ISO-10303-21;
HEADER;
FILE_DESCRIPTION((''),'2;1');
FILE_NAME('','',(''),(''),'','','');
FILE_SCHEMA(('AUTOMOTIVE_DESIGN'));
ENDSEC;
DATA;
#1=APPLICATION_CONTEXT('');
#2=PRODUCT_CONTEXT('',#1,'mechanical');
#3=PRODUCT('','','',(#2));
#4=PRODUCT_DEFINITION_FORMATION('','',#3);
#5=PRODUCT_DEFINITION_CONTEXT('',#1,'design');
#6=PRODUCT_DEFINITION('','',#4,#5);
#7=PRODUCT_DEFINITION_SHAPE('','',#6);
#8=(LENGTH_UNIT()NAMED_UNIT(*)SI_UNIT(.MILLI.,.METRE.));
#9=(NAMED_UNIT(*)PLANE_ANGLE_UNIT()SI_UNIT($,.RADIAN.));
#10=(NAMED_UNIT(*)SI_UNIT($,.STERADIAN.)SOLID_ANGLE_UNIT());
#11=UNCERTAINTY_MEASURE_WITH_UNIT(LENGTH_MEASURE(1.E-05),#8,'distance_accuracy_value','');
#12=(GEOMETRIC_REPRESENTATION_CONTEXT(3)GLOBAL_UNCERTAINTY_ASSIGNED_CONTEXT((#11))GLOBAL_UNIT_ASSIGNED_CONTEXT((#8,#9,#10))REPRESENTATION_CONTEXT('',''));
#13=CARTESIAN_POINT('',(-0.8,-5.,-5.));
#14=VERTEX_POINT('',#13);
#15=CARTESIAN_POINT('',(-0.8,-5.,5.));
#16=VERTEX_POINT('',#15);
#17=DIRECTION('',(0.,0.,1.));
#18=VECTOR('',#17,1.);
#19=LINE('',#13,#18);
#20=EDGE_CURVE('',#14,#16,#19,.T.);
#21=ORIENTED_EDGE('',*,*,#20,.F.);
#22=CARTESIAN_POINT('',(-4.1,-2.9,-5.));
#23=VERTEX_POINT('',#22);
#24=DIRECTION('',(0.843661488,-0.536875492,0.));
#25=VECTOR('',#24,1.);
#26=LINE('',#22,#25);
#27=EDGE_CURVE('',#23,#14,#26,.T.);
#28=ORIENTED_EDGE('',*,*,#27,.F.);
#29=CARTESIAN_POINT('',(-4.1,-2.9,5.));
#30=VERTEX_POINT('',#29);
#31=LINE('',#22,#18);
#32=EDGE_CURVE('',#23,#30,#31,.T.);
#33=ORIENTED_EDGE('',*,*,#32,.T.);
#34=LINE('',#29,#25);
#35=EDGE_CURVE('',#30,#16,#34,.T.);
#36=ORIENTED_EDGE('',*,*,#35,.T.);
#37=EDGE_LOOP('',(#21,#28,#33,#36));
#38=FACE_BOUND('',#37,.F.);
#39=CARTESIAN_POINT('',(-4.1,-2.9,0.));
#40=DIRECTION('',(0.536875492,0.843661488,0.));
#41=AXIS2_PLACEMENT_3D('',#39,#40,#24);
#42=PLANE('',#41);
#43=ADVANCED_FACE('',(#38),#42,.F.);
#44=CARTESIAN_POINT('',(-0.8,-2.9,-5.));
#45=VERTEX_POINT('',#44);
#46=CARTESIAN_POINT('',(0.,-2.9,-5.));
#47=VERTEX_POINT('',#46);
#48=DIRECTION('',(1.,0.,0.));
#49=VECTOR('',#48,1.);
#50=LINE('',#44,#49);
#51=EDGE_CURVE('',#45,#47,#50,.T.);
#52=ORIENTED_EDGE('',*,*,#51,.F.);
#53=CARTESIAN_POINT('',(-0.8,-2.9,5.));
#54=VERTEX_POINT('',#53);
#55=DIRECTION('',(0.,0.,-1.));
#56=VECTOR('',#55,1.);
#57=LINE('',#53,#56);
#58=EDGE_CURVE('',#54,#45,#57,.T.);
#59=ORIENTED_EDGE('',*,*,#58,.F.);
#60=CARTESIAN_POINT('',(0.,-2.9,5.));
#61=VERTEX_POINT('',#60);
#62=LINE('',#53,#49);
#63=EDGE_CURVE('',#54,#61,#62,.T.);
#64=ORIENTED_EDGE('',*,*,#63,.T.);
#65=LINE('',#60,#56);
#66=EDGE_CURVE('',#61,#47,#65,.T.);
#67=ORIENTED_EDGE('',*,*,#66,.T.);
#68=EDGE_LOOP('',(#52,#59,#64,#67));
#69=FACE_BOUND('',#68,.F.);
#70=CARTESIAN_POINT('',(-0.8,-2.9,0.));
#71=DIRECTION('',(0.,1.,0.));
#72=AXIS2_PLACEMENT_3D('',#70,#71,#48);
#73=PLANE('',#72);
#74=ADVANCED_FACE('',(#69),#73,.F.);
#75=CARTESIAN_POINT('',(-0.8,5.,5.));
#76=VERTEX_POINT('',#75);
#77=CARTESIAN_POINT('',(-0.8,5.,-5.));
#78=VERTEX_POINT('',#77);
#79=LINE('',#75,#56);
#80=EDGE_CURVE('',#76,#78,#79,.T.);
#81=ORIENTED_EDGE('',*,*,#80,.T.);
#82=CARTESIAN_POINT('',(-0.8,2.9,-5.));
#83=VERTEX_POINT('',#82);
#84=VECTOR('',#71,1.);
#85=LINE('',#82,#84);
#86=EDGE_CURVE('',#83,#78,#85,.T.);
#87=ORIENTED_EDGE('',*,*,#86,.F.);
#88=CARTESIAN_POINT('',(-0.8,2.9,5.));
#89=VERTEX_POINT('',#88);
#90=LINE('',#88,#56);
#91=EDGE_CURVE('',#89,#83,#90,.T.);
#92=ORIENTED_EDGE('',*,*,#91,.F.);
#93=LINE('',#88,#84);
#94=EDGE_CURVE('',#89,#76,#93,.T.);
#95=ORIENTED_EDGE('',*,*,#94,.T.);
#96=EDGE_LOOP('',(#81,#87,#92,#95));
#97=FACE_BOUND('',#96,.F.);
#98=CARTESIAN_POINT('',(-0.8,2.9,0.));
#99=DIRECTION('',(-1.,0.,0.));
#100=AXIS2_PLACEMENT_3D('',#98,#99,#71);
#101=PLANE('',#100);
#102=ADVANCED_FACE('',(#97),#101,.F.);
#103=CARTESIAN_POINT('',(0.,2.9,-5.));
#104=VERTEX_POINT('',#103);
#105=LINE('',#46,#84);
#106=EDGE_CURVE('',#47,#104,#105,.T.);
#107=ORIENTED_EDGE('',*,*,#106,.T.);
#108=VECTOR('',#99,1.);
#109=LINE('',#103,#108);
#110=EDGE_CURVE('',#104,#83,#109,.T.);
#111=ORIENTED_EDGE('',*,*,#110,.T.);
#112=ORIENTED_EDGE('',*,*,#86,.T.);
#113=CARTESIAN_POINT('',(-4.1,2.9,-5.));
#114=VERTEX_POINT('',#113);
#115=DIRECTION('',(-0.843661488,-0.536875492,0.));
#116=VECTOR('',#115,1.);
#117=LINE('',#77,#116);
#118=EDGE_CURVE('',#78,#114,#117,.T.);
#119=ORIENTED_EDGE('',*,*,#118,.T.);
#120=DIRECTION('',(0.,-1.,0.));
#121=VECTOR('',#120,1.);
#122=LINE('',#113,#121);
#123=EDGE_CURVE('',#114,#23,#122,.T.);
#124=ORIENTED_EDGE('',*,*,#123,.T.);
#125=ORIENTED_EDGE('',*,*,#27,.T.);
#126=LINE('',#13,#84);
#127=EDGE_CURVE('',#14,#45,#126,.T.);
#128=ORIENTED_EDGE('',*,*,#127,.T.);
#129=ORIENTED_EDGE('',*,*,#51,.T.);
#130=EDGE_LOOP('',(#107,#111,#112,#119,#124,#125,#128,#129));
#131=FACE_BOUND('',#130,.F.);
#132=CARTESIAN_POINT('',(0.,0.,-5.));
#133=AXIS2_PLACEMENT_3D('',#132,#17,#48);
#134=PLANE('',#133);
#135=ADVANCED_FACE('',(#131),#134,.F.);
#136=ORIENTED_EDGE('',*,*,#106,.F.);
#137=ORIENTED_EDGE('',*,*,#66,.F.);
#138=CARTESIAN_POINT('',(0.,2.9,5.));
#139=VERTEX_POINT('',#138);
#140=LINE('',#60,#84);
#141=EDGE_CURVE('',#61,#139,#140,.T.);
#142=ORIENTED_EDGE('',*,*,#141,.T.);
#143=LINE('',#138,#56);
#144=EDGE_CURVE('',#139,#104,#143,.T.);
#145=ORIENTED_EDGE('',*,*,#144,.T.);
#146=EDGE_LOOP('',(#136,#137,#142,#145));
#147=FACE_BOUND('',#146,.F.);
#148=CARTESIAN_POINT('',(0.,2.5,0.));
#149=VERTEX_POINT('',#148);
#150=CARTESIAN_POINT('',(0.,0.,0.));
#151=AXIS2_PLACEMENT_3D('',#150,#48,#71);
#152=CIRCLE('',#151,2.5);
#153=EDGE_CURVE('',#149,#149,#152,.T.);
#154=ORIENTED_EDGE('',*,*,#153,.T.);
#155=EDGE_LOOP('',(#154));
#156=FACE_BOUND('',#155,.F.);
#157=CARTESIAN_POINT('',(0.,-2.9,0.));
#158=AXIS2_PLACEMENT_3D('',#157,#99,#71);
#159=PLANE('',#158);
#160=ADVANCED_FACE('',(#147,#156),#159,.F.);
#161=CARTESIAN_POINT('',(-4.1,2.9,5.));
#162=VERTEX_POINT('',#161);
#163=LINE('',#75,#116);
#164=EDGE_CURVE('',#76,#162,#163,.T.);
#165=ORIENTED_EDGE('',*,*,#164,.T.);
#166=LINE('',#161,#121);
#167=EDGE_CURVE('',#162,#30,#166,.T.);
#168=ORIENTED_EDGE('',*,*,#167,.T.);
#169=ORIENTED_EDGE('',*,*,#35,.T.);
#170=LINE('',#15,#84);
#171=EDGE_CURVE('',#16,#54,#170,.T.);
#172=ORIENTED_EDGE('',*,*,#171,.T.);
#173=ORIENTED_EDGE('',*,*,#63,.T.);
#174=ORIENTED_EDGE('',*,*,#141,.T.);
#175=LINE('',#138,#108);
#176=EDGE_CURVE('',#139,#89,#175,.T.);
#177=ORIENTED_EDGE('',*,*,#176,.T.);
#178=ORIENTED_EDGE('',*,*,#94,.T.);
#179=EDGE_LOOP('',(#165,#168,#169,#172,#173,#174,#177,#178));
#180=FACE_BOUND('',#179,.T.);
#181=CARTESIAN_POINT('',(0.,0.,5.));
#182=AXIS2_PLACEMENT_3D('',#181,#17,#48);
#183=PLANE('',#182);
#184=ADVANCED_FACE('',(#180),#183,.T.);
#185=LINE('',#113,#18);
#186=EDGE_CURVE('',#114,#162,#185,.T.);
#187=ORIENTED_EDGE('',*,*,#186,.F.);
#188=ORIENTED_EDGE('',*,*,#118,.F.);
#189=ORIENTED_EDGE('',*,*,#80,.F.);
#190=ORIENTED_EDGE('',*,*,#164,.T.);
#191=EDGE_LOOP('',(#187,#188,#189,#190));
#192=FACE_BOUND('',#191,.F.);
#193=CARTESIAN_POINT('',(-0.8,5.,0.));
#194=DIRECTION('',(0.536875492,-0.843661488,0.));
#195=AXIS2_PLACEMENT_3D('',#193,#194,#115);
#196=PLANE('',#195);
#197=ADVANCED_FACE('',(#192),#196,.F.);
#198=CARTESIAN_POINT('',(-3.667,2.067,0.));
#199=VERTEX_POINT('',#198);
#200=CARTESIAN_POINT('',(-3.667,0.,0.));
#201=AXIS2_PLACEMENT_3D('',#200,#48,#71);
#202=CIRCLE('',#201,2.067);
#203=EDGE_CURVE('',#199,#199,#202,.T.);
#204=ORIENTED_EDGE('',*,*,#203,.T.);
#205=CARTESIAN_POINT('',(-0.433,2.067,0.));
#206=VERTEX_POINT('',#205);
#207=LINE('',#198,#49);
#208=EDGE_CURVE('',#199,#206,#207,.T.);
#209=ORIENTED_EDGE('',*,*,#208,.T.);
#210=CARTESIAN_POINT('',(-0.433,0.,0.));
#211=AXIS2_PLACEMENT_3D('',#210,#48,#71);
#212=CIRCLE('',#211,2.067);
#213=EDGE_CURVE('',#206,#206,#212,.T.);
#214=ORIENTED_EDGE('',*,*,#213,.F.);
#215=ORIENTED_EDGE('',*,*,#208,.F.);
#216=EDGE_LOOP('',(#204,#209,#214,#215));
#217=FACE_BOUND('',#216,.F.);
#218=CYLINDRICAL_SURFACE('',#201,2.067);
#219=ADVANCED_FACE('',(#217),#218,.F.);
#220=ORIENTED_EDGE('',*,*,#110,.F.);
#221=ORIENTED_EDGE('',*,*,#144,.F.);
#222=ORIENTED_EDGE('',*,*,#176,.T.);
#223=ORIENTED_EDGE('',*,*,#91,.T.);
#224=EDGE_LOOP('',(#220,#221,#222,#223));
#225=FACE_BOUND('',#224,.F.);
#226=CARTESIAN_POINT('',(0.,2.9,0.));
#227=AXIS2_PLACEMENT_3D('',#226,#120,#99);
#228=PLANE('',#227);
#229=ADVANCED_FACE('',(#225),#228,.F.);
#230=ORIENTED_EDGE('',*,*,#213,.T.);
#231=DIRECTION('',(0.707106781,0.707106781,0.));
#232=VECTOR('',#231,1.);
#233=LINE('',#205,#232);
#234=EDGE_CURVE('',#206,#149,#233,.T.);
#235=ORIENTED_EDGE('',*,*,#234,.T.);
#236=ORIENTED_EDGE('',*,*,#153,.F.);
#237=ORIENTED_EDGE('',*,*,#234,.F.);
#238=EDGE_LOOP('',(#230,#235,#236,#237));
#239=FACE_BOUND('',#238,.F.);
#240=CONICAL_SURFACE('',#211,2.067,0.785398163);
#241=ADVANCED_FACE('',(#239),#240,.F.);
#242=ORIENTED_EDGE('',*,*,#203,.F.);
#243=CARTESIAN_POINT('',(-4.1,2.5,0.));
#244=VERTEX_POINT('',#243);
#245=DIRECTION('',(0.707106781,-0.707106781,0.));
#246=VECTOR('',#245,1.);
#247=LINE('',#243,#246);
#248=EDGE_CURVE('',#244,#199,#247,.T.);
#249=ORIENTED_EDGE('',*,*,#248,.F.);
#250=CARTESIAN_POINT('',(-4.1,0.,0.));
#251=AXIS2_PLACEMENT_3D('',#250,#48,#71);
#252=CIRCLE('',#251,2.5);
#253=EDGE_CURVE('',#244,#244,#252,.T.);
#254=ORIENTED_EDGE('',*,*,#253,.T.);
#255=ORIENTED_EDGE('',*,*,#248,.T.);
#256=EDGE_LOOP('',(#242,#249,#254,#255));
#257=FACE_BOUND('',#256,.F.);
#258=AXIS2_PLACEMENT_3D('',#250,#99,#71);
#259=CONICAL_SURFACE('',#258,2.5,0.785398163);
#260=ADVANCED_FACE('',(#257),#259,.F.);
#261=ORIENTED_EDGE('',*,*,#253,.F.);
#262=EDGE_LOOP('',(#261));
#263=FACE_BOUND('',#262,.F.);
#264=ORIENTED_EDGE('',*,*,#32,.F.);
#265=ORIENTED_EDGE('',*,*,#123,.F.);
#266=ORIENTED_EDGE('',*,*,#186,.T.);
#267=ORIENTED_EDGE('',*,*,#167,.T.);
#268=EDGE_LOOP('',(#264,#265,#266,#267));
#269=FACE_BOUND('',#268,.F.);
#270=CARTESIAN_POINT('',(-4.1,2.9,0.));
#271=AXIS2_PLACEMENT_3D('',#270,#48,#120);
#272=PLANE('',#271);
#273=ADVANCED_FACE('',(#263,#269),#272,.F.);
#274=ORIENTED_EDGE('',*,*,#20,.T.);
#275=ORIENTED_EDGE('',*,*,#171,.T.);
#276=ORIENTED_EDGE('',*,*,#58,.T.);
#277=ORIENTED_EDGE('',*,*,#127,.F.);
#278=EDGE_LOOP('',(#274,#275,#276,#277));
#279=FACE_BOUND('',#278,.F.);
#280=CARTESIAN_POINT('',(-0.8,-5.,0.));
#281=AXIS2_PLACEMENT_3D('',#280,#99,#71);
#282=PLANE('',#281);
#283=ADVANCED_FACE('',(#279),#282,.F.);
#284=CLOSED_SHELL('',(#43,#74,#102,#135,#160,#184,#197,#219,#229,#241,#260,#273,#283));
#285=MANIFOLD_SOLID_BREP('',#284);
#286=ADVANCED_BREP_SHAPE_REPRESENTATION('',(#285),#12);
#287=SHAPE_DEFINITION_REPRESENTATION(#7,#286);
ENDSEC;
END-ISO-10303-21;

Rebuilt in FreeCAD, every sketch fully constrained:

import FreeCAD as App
import Part
import Sketcher
from FreeCAD import Vector
Q = App.Units.Quantity

doc = App.newDocument("Part")
body = doc.addObject("PartDesign::Body", "Body")

sketch1 = body.newObject("Sketcher::SketchObject", "Sketch")
sketch1.AttachmentSupport = (doc.getObject("XY_Plane"), [""])
sketch1.MapMode = "FlatFace"
sketch1.addGeometry([
    Part.LineSegment(Vector(-0.8, 5, 0), Vector(-4.1, 2.9, 0)),
    Part.LineSegment(Vector(-4.1, 2.9, 0), Vector(-4.1, -2.9, 0)),
    Part.LineSegment(Vector(-4.1, -2.9, 0), Vector(-0.8, -5, 0)),
    Part.LineSegment(Vector(-0.8, -5, 0), Vector(-0.8, -2.9, 0)),
    Part.LineSegment(Vector(-0.8, -2.9, 0), Vector(0, -2.9, 0)),
    Part.LineSegment(Vector(0, -2.9, 0), Vector(0, 2.9, 0)),
    Part.LineSegment(Vector(0, 2.9, 0), Vector(-0.8, 2.9, 0)),
    Part.LineSegment(Vector(-0.8, 2.9, 0), Vector(-0.8, 5, 0)),
], False)
sketch1.addConstraint([
    Sketcher.Constraint("Coincident", 0, 2, 1, 1),
    Sketcher.Constraint("Coincident", 1, 2, 2, 1),
    Sketcher.Constraint("Coincident", 2, 2, 3, 1),
    Sketcher.Constraint("Coincident", 3, 2, 4, 1),
    Sketcher.Constraint("Coincident", 4, 2, 5, 1),
    Sketcher.Constraint("Coincident", 5, 2, 6, 1),
    Sketcher.Constraint("Coincident", 6, 2, 7, 1),
    Sketcher.Constraint("Coincident", 7, 2, 0, 1),
    Sketcher.Constraint("Vertical", 1),
    Sketcher.Constraint("Vertical", 3),
    Sketcher.Constraint("Horizontal", 4),
    Sketcher.Constraint("Vertical", 5),
    Sketcher.Constraint("Horizontal", 6),
    Sketcher.Constraint("Vertical", 7),
    Sketcher.Constraint("Symmetric", 4, 2, 5, 2, -1, 1),
    Sketcher.Constraint("Symmetric", 2, 2, 7, 2, -1),
    Sketcher.Constraint("Horizontal", 1, 2, 3, 2),
    Sketcher.Constraint("Horizontal", 0, 2, 5, 2),
    Sketcher.Constraint("DistanceX", 4, 1, 4, 2, Q("0.8 mm")),
    Sketcher.Constraint("DistanceY", 1, 2, 1, 1, Q("5.8 mm")),
    Sketcher.Constraint("DistanceY", 3, 1, 3, 2, Q("2.1 mm")),
    Sketcher.Constraint("DistanceX", 0, 2, -1, 1, Q("4.1 mm")),
])
pad1 = body.newObject("PartDesign::Pad", "Pad")
pad1.Profile = sketch1
pad1.Length = 10
pad1.Midplane = True

sketch2 = body.newObject("Sketcher::SketchObject", "Sketch001")
sketch2.AttachmentSupport = (doc.getObject("XY_Plane"), [""])
sketch2.MapMode = "FlatFace"
sketch2.addGeometry([
    Part.LineSegment(Vector(-4.1, 0, 0), Vector(0, 0, 0)),
    Part.LineSegment(Vector(0, 0, 0), Vector(0, 2.5, 0)),
    Part.LineSegment(Vector(0, 2.5, 0), Vector(-0.4, 2.1, 0)),
    Part.LineSegment(Vector(-0.4, 2.1, 0), Vector(-3.7, 2.1, 0)),
    Part.LineSegment(Vector(-3.7, 2.1, 0), Vector(-4.1, 2.5, 0)),
    Part.LineSegment(Vector(-4.1, 2.5, 0), Vector(-4.1, 0, 0)),
], False)
sketch2.addConstraint([
    Sketcher.Constraint("Coincident", 0, 2, 1, 1),
    Sketcher.Constraint("Coincident", 1, 2, 2, 1),
    Sketcher.Constraint("Coincident", 2, 2, 3, 1),
    Sketcher.Constraint("Coincident", 3, 2, 4, 1),
    Sketcher.Constraint("Coincident", 4, 2, 5, 1),
    Sketcher.Constraint("Coincident", 5, 2, 0, 1),
    Sketcher.Constraint("Horizontal", 0),
    Sketcher.Constraint("Vertical", 1),
    Sketcher.Constraint("Horizontal", 3),
    Sketcher.Constraint("Vertical", 5),
    Sketcher.Constraint("Coincident", 0, 2, -1, 1),
    Sketcher.Constraint("Perpendicular", 2, 4),
    Sketcher.Constraint("Horizontal", 1, 2, 4, 2),
    Sketcher.Constraint("Equal", 2, 4),
    Sketcher.Constraint("DistanceX", 0, 1, 0, 2, Q("4.1 mm")),
    Sketcher.Constraint("DistanceY", 1, 1, 1, 2, Q("2.5 mm")),
    Sketcher.Constraint("DistanceX", 3, 2, 3, 1, Q("3.234 mm")),
])
groove = body.newObject("PartDesign::Groove", "Groove")
groove.Profile = sketch2
groove.ReferenceAxis = (sketch2, ["H_Axis"])
groove.Angle = 360

doc.recompute()
